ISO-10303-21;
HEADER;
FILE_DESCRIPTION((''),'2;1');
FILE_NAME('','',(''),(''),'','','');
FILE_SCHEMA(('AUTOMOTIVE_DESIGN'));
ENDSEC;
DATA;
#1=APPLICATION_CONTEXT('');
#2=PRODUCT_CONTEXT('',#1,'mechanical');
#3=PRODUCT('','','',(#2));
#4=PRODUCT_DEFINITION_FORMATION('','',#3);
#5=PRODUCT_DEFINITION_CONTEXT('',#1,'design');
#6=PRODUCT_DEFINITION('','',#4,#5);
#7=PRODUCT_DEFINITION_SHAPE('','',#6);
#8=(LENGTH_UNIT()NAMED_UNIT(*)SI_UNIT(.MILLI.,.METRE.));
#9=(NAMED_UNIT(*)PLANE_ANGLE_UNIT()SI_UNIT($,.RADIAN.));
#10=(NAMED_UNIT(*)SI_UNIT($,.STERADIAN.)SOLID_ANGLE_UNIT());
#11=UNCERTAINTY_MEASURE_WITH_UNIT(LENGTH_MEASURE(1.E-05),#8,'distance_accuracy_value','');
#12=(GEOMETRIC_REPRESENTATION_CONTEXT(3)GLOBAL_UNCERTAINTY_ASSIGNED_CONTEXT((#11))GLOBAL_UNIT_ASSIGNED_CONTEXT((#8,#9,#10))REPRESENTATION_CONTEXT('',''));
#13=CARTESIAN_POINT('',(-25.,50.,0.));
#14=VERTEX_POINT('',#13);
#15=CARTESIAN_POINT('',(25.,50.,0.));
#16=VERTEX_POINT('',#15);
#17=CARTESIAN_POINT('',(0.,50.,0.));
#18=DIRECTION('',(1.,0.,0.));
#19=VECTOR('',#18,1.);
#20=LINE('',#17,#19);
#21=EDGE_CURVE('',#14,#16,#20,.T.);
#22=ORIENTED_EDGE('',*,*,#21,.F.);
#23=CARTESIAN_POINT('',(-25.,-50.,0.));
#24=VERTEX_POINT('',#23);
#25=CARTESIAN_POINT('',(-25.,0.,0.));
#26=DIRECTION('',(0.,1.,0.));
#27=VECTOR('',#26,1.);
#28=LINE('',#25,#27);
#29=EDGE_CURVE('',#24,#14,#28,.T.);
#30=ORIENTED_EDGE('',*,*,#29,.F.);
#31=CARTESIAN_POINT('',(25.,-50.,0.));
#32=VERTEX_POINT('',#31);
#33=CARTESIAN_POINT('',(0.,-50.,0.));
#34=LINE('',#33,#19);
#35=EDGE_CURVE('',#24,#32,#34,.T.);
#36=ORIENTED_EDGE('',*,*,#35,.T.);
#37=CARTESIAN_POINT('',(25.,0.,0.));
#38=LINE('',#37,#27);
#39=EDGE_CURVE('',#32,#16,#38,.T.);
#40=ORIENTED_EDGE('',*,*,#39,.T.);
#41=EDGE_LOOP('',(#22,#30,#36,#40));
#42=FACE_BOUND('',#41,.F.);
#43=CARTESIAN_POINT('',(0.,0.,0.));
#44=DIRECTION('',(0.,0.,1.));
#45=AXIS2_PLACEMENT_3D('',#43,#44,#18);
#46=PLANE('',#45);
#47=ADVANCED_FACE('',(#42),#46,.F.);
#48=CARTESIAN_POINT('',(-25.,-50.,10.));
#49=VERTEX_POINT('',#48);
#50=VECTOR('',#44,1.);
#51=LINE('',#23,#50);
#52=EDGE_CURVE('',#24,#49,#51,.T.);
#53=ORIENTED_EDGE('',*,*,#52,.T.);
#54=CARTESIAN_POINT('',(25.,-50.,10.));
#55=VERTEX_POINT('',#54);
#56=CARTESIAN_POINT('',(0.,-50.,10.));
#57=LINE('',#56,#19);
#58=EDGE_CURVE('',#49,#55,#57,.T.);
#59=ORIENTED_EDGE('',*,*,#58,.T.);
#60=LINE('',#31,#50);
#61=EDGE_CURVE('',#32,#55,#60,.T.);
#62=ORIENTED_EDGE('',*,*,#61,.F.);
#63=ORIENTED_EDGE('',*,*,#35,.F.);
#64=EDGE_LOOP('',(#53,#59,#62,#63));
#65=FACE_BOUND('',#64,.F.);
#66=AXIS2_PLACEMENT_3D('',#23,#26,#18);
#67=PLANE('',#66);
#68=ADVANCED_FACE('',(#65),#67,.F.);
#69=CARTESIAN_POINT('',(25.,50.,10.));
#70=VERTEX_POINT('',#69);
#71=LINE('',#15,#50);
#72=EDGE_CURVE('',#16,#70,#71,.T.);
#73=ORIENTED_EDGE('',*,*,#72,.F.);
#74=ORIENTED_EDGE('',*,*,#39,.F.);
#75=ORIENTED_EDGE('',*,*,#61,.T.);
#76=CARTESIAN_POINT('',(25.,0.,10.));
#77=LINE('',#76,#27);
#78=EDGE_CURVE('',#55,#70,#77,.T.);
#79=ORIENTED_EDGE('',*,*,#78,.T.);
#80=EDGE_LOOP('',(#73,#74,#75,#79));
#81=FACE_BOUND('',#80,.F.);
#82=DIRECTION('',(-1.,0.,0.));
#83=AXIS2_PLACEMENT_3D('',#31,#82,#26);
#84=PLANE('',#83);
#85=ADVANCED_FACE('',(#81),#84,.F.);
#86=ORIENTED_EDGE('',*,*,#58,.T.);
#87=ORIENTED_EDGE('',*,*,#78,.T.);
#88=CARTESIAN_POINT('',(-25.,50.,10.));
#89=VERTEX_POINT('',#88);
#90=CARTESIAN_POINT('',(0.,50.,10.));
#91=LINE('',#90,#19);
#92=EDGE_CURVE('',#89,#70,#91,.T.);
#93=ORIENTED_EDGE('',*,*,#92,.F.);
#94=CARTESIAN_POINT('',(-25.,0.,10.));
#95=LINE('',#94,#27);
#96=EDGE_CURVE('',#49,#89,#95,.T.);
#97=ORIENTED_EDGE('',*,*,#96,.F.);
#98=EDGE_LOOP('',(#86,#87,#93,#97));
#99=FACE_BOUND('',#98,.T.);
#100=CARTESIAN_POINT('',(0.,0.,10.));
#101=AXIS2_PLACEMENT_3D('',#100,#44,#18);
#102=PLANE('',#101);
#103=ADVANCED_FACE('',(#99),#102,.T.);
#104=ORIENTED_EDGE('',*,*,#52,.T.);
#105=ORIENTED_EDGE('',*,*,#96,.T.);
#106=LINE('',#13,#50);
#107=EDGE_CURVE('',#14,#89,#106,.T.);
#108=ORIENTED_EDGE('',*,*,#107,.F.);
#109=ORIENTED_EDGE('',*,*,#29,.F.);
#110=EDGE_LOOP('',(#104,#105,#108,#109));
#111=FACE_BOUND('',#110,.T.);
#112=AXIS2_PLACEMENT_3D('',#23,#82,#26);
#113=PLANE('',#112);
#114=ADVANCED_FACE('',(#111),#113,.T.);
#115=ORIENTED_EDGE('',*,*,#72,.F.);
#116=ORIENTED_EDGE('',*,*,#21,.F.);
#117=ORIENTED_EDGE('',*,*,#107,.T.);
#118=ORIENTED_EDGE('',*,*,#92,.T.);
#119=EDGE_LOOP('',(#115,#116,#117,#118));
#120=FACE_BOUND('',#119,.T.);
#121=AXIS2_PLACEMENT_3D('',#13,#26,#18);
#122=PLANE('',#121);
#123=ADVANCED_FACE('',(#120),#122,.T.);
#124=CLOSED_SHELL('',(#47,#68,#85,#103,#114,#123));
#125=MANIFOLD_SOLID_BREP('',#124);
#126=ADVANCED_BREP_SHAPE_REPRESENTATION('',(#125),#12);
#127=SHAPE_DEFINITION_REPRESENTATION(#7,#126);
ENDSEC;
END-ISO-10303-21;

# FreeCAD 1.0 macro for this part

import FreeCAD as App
import Part
import Sketcher

V = App.Vector


def add_polygon(sketch, points):
    """Adds a closed chain of lines whose ends are joined by coincident constraints."""
    first, n = sketch.GeometryCount, len(points)
    for a, b in zip(points, points[1:] + points[:1]):
        sketch.addGeometry(Part.LineSegment(App.Vector(*a, 0), App.Vector(*b, 0)), False)
    for i in range(n):
        sketch.addConstraint(Sketcher.Constraint("Coincident", first + i, 2, first + (i + 1) % n, 1))

doc = App.newDocument("Part")
params = doc.addObject("Spreadsheet::Sheet", "Params")
for row, (alias, value) in enumerate([
    ("sketch1_width", "50 mm"),
    ("sketch1_height", "100 mm"),
    ("pad1_length", "10 mm"),
], start=1):
    params.set(f"A{row}", alias)
    params.set(f"B{row}", "=" + value)
    params.setAlias(f"B{row}", alias)

body = doc.addObject("PartDesign::Body", "Body")

# Sketch on XY plane
sketch1 = doc.addObject("Sketcher::SketchObject", "Sketch")
body.addObject(sketch1)
sketch1.AttachmentSupport = (doc.XY_Plane, [""])
sketch1.MapMode = "FlatFace"
add_polygon(sketch1, [(-25, 50), (-25, -50), (25, -50), (25, 50)])  # lines 0-3
sketch1.addConstraint(Sketcher.Constraint("Vertical", 0))
sketch1.addConstraint(Sketcher.Constraint("Horizontal", 1))
sketch1.addConstraint(Sketcher.Constraint("Vertical", 2))
sketch1.addConstraint(Sketcher.Constraint("Horizontal", 3))
sketch1.addConstraint(Sketcher.Constraint("Symmetric", 0, 2, 2, 2, -1, 1))
sketch1.addConstraint(Sketcher.Constraint("DistanceX", 1, 1, 1, 2, 50.0))
sketch1.addConstraint(Sketcher.Constraint("DistanceY", 0, 2, 0, 1, 100.0))
sketch1.setExpression("Constraints[9]", "Params.sketch1_width")
sketch1.setExpression("Constraints[10]", "Params.sketch1_height")
pad1 = doc.addObject("PartDesign::Pad", "Pad")
body.addObject(pad1)
pad1.Profile = sketch1
pad1.setExpression("Length", "Params.pad1_length")

doc.recompute()
